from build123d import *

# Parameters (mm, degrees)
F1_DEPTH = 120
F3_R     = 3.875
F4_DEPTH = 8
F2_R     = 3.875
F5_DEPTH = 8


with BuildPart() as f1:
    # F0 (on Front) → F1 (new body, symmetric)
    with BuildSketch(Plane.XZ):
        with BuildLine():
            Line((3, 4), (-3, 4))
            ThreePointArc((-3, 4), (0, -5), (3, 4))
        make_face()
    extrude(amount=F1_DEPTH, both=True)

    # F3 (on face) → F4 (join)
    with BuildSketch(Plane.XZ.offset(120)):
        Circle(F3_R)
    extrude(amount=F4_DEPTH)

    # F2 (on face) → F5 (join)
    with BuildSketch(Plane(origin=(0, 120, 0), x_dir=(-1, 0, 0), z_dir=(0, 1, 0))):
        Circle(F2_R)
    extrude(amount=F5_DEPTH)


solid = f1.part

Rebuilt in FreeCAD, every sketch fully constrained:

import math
import FreeCAD as App
import Part
import Sketcher
from FreeCAD import Vector
Q = App.Units.Quantity

doc = App.newDocument("Part")
params = doc.addObject("Spreadsheet::Sheet", "Params")
for row, (alias, value) in enumerate([
    ("sketch1_radius", "5 mm"),
    ("sketch1_width", "6 mm"),
    ("pad1_length", "240 mm"),
    ("sketch2_diameter", "7.75 mm"),
    ("pad2_length", "8 mm"),
    ("sketch3_diameter", "7.75 mm"),
    ("pad3_length", "8 mm"),
], start=1):
    params.set(f"A{row}", alias)
    params.set(f"B{row}", "=" + value)
    params.setAlias(f"B{row}", alias)

body = doc.addObject("PartDesign::Body", "Body")

sketch1 = doc.addObject("Sketcher::SketchObject", "Sketch")
body.addObject(sketch1)
sketch1.AttachmentSupport = (doc.XZ_Plane, [""])
sketch1.MapMode = "FlatFace"
sketch1.addGeometry([
    Part.LineSegment(Vector(3, 4, 0), Vector(-3, 4, 0)),
    Part.ArcOfCircle(Part.Circle(Vector(0, 0, 0), Vector(0, 0, 1), 5), math.radians(126.869898), math.radians(413.130102)),
], False)
sketch1.addConstraint([
    Sketcher.Constraint("Coincident", 0, 1, 1, 2),
    Sketcher.Constraint("Coincident", 1, 1, 0, 2),
    Sketcher.Constraint("Horizontal", 0),
    Sketcher.Constraint("Coincident", 1, 3, -1, 1),
    Sketcher.Constraint("Radius", 1, Q("5 mm")),
    Sketcher.Constraint("DistanceX", 0, 2, 0, 1, Q("6 mm")),
])
sketch1.setExpression("Constraints[4]", "Params.sketch1_radius")
sketch1.setExpression("Constraints[5]", "Params.sketch1_width")
pad1 = doc.addObject("PartDesign::Pad", "Pad")
body.addObject(pad1)
pad1.Profile = sketch1
pad1.setExpression("Length", "Params.pad1_length")
pad1.Midplane = True

sketch2 = doc.addObject("Sketcher::SketchObject", "Sketch001")
body.addObject(sketch2)
sketch2.AttachmentSupport = (doc.XZ_Plane, [""])
sketch2.MapMode = "FlatFace"
sketch2.AttachmentOffset = App.Placement(Vector(0, 0, 120), App.Rotation())
sketch2.addGeometry(Part.Circle(Vector(0, 0, 0), Vector(0, 0, 1), 3.875), False)
sketch2.addConstraint([
    Sketcher.Constraint("Coincident", 0, 3, -1, 1),
    Sketcher.Constraint("Diameter", 0, Q("7.75 mm")),
])
sketch2.setExpression("Constraints[1]", "Params.sketch2_diameter")
pad2 = doc.addObject("PartDesign::Pad", "Pad001")
body.addObject(pad2)
pad2.Profile = sketch2
pad2.setExpression("Length", "Params.pad2_length")

sketch3 = doc.addObject("Sketcher::SketchObject", "Sketch002")
body.addObject(sketch3)
sketch3.AttachmentSupport = (doc.XZ_Plane, [""])
sketch3.MapMode = "FlatFace"
sketch3.AttachmentOffset = App.Placement(Vector(0, 0, -120), App.Rotation())
sketch3.addGeometry(Part.Circle(Vector(0, 0, 0), Vector(0, 0, 1), 3.875), False)
sketch3.addConstraint([
    Sketcher.Constraint("Coincident", 0, 3, -1, 1),
    Sketcher.Constraint("Diameter", 0, Q("7.75 mm")),
])
sketch3.setExpression("Constraints[1]", "Params.sketch3_diameter")
pad3 = doc.addObject("PartDesign::Pad", "Pad002")
body.addObject(pad3)
pad3.Profile = sketch3
pad3.setExpression("Length", "Params.pad3_length")
pad3.Reversed = True

doc.recompute()
